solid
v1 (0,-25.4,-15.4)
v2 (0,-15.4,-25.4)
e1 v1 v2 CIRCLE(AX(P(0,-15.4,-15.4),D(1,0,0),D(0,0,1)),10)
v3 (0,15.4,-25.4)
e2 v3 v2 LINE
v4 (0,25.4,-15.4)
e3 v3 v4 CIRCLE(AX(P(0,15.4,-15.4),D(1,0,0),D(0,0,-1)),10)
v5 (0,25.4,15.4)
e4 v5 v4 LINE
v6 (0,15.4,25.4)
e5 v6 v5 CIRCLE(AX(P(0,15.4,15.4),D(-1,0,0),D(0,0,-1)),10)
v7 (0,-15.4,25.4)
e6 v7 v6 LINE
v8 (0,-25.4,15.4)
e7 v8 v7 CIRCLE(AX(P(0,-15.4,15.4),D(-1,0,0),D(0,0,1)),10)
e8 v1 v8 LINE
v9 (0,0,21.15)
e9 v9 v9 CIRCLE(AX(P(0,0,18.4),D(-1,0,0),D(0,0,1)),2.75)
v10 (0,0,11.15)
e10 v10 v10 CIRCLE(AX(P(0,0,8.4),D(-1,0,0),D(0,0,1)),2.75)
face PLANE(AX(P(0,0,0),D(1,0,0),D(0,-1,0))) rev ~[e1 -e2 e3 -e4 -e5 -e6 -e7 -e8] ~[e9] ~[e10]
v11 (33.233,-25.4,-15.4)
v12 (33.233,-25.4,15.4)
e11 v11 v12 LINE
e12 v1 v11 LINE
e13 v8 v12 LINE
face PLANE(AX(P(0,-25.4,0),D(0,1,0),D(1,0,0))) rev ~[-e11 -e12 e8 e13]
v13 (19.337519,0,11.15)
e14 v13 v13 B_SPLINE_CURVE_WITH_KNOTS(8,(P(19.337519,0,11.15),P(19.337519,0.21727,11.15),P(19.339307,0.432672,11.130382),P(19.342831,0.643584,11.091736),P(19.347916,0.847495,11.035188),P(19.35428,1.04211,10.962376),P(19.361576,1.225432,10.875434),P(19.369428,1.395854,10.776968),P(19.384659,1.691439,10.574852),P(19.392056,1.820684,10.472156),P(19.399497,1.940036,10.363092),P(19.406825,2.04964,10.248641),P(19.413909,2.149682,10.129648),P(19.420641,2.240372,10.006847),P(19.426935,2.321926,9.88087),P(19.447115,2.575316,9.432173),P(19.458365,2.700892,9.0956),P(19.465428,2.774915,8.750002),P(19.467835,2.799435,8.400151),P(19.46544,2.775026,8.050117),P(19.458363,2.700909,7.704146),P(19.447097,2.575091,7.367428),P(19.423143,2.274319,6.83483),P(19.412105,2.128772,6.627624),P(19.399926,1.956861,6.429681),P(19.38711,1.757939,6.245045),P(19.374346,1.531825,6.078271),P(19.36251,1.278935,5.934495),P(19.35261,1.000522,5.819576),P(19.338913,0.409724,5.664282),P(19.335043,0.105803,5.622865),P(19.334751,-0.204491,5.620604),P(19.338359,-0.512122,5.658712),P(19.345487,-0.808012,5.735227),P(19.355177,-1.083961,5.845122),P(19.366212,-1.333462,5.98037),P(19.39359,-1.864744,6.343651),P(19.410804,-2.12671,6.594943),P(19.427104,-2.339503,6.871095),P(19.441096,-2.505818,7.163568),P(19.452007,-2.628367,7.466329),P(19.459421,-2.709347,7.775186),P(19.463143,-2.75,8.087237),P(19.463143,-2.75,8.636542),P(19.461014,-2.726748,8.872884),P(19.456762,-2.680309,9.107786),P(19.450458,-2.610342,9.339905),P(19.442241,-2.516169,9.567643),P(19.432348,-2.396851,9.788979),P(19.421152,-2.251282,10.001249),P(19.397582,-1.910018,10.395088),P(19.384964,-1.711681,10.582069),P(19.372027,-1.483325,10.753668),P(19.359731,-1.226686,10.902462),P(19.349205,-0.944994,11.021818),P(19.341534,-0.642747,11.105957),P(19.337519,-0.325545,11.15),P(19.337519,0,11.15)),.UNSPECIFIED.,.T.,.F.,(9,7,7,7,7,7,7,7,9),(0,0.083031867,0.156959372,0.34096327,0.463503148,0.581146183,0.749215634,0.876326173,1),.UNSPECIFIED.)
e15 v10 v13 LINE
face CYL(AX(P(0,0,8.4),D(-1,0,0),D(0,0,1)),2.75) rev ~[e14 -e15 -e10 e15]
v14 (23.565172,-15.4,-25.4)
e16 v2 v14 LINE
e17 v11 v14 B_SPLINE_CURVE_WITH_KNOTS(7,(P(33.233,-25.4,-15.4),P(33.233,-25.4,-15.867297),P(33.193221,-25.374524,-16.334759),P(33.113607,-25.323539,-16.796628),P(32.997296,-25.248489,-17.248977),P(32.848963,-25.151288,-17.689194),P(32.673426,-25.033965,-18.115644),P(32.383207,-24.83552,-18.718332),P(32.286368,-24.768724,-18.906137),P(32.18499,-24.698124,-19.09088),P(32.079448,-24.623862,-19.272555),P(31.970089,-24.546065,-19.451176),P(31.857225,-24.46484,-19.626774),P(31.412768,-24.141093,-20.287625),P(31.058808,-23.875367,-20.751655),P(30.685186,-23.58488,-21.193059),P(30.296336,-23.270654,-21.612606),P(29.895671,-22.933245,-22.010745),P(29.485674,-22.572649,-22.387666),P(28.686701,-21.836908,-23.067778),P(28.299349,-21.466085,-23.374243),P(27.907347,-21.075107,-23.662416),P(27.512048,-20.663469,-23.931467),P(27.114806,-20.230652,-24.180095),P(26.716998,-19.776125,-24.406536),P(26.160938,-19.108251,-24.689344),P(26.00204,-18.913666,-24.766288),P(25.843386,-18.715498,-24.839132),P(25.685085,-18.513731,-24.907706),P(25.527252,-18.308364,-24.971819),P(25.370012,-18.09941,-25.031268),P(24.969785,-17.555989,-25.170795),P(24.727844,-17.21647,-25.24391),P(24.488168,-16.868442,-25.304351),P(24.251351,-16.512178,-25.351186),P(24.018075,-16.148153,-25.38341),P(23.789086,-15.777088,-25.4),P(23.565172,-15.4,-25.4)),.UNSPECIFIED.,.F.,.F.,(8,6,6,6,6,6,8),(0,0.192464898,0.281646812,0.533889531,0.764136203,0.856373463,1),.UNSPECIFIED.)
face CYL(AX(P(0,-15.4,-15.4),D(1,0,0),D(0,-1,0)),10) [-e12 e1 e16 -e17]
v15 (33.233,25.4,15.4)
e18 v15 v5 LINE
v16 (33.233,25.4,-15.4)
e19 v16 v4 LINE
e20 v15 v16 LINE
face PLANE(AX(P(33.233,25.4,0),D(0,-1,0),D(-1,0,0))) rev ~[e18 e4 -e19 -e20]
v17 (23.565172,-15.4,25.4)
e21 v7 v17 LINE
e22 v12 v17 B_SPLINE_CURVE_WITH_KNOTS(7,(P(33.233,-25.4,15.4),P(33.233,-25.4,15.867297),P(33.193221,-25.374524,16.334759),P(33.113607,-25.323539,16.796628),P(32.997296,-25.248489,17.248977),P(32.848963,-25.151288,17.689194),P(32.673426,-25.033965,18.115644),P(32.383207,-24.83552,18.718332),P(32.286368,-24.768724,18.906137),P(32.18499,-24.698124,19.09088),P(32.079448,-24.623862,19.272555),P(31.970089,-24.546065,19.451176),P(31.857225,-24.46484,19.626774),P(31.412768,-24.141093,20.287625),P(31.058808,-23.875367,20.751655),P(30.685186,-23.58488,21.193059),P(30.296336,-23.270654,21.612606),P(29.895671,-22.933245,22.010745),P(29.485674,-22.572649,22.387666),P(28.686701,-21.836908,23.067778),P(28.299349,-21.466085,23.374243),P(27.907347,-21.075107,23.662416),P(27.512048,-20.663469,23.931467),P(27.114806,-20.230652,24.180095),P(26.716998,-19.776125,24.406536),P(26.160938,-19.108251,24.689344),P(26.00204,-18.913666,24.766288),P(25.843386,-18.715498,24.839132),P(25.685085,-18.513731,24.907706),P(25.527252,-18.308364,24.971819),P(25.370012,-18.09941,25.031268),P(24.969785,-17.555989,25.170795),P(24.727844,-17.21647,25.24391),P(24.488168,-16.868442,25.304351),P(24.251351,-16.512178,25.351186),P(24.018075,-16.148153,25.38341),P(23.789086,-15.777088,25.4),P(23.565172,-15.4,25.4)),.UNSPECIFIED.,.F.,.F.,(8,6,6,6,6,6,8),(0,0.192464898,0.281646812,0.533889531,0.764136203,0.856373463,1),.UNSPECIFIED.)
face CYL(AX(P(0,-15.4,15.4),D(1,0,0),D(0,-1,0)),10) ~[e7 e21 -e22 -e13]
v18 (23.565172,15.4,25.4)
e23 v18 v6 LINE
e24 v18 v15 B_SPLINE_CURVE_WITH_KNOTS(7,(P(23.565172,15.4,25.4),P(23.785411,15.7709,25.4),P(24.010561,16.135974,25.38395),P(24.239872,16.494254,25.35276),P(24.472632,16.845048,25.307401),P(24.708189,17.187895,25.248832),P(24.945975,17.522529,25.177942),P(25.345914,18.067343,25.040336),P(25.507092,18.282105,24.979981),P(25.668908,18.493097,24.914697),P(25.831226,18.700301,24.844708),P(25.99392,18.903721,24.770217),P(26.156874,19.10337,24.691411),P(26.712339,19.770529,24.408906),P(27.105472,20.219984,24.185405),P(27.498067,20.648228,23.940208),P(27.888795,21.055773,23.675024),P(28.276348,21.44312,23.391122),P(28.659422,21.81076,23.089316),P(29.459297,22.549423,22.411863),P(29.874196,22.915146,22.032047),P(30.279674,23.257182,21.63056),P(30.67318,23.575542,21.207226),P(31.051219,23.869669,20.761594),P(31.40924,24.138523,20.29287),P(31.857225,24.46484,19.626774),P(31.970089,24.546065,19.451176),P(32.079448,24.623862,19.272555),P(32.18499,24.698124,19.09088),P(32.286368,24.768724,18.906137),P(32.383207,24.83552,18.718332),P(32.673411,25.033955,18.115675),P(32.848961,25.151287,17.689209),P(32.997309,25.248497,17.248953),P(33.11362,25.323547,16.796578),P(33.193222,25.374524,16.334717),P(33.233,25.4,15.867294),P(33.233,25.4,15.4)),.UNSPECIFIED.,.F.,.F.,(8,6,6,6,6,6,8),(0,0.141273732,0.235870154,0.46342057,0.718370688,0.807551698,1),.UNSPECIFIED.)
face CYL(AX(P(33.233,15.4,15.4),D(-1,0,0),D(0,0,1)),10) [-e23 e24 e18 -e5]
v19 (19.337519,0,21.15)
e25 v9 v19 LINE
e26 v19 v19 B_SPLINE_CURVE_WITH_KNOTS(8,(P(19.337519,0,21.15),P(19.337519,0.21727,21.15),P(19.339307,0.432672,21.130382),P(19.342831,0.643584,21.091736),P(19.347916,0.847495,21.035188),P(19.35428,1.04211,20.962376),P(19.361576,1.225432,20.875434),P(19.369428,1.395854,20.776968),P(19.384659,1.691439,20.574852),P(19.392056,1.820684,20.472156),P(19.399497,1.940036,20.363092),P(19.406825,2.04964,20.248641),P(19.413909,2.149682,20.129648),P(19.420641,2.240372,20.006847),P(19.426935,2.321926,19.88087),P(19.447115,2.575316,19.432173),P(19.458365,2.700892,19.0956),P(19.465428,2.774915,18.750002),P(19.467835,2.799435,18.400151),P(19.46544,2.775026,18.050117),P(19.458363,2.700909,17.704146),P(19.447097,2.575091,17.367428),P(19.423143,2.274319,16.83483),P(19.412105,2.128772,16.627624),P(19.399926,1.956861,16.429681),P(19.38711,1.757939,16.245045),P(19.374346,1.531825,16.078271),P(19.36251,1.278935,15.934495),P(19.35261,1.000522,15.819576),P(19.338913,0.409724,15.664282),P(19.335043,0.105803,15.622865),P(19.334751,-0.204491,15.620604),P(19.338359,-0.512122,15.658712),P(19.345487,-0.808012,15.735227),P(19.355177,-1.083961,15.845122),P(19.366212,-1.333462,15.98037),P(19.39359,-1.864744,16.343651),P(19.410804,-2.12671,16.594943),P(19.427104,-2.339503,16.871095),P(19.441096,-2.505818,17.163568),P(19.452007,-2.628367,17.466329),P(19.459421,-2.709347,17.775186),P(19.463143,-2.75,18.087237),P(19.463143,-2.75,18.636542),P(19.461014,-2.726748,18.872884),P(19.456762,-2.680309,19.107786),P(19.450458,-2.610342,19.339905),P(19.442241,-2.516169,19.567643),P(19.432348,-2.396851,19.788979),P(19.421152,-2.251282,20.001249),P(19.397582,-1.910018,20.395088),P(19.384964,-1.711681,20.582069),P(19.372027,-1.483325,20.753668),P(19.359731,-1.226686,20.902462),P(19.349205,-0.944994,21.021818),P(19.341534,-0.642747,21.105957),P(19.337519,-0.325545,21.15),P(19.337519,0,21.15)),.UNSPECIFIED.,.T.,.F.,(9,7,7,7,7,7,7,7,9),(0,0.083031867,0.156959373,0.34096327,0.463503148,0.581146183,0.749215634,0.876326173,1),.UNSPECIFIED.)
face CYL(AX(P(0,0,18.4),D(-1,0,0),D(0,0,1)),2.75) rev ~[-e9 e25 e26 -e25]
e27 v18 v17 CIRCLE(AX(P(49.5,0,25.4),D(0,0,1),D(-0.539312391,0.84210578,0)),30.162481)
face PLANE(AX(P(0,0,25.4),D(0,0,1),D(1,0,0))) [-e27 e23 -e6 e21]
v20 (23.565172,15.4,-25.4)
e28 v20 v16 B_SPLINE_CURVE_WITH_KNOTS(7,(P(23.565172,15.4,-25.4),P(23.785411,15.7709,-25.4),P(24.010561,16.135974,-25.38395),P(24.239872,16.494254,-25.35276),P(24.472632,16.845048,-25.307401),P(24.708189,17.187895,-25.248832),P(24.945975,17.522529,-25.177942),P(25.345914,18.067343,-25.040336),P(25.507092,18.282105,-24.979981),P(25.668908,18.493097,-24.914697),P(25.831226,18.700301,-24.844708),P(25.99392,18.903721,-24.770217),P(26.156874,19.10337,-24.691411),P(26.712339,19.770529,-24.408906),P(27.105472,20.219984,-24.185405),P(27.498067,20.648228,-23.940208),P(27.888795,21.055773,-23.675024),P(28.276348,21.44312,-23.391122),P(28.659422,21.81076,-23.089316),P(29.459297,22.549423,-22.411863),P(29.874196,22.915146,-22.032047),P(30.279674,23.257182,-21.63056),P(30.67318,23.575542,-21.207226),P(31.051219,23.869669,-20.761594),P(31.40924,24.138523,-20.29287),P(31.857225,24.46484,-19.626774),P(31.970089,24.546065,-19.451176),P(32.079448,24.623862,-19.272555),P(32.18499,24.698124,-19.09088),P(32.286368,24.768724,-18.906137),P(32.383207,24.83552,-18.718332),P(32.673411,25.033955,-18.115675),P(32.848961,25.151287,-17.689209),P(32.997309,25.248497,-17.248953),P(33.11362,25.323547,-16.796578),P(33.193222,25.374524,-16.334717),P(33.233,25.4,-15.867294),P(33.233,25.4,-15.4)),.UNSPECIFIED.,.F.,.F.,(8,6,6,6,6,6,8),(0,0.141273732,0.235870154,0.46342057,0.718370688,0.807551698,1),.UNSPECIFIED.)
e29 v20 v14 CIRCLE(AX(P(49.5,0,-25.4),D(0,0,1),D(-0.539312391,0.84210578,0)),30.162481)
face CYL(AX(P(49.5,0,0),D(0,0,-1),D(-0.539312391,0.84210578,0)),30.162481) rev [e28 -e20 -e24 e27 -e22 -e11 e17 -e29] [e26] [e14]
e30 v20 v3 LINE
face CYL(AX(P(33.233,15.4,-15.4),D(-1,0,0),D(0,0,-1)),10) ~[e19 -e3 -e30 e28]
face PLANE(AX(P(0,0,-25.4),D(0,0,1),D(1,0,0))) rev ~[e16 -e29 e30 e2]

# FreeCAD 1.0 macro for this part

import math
import FreeCAD as App
import Part
import Sketcher
Q = App.Units.Quantity


def edges_at(feature, points):
    """Names of the edges that pass closest to the given points."""
    edges = feature.Shape.Edges
    near = lambda p: min(range(len(edges)), key=lambda i: edges[i].distToShape(Part.Vertex(*p))[0])
    return sorted({f"Edge{near(p) + 1}" for p in points})

doc = App.newDocument("Part")
body = doc.addObject("PartDesign::Body", "Body")

# Sketch on XY plane
sketch1 = body.newObject("Sketcher::SketchObject", "Sketch")
sketch1.AttachmentSupport = (doc.getObject("XY_Plane"), [""])
sketch1.MapMode = "FlatFace"
sketch1.addGeometry([
    Part.LineSegment(App.Vector(0, 25.4, 0), App.Vector(0, -25.4, 0)),
    Part.LineSegment(App.Vector(0, -25.4, 0), App.Vector(33.233, -25.4, 0)),
    Part.ArcOfCircle(Part.Circle(App.Vector(49.5, 0, 0), App.Vector(0, 0, 1), 30.162481), math.radians(122.636843), math.radians(237.363157)),
    Part.LineSegment(App.Vector(33.233, 25.4, 0), App.Vector(0, 25.4, 0)),
], False)
sketch1.addConstraint([
    Sketcher.Constraint("Coincident", 0, 2, 1, 1),
    Sketcher.Constraint("Coincident", 1, 2, 2, 2),
    Sketcher.Constraint("Coincident", 2, 1, 3, 1),
    Sketcher.Constraint("Coincident", 3, 2, 0, 1),
    Sketcher.Constraint("Vertical", 0),
    Sketcher.Constraint("Horizontal", 1),
    Sketcher.Constraint("Horizontal", 3),
    Sketcher.Constraint("Symmetric", 0, 2, 3, 2, -1, 1),
    Sketcher.Constraint("PointOnObject", 2, 3, -1),
    Sketcher.Constraint("DistanceY", 0, 2, 0, 1, Q("2 in")),
    Sketcher.Constraint("Radius", 2, Q("1.1875 in")),
    Sketcher.Constraint("DistanceX", -1, 1, 2, 3, Q("49.5 mm")),
])
pad1 = body.newObject("PartDesign::Pad", "Pad")
pad1.Profile = sketch1
pad1.Length = Q("2 in")
pad1.Midplane = True

# Sketch on YZ plane
sketch2 = body.newObject("Sketcher::SketchObject", "Sketch001")
sketch2.AttachmentSupport = (doc.getObject("YZ_Plane"), [""])
sketch2.MapMode = "FlatFace"
sketch2.addGeometry([
    Part.Circle(App.Vector(0, 18.4, 0), App.Vector(0, 0, 1), 2.75),
    Part.Circle(App.Vector(0, 8.4, 0), App.Vector(0, 0, 1), 2.75),
], False)
sketch2.addConstraint([
    Sketcher.Constraint("Equal", 0, 1),
    Sketcher.Constraint("PointOnObject", 0, 3, -2),
    Sketcher.Constraint("PointOnObject", 1, 3, -2),
    Sketcher.Constraint("Diameter", 0, Q("5.5 mm")),
    Sketcher.Constraint("DistanceY", 1, 3, 0, 3, Q("0.3937 in")),
    Sketcher.Constraint("DistanceY", -1, 1, 0, 3, Q("0.7244 in")),
])
pocket1 = body.newObject("PartDesign::Pocket", "Pocket")
pocket1.Profile = sketch2
pocket1.Type = "ThroughAll"
pocket1.Reversed = True
doc.recompute()

fillet = body.newObject("PartDesign::Fillet", "Fillet")
fillet.Base = (pocket1, edges_at(pocket1, [
    (16.616, 25.4, 25.4),
    (16.616, -25.4, 25.4),
    (16.616, 25.4, -25.4),
    (16.616, -25.4, -25.4),
]))
fillet.Radius = Q("0.3937008 in")

doc.recompute()
